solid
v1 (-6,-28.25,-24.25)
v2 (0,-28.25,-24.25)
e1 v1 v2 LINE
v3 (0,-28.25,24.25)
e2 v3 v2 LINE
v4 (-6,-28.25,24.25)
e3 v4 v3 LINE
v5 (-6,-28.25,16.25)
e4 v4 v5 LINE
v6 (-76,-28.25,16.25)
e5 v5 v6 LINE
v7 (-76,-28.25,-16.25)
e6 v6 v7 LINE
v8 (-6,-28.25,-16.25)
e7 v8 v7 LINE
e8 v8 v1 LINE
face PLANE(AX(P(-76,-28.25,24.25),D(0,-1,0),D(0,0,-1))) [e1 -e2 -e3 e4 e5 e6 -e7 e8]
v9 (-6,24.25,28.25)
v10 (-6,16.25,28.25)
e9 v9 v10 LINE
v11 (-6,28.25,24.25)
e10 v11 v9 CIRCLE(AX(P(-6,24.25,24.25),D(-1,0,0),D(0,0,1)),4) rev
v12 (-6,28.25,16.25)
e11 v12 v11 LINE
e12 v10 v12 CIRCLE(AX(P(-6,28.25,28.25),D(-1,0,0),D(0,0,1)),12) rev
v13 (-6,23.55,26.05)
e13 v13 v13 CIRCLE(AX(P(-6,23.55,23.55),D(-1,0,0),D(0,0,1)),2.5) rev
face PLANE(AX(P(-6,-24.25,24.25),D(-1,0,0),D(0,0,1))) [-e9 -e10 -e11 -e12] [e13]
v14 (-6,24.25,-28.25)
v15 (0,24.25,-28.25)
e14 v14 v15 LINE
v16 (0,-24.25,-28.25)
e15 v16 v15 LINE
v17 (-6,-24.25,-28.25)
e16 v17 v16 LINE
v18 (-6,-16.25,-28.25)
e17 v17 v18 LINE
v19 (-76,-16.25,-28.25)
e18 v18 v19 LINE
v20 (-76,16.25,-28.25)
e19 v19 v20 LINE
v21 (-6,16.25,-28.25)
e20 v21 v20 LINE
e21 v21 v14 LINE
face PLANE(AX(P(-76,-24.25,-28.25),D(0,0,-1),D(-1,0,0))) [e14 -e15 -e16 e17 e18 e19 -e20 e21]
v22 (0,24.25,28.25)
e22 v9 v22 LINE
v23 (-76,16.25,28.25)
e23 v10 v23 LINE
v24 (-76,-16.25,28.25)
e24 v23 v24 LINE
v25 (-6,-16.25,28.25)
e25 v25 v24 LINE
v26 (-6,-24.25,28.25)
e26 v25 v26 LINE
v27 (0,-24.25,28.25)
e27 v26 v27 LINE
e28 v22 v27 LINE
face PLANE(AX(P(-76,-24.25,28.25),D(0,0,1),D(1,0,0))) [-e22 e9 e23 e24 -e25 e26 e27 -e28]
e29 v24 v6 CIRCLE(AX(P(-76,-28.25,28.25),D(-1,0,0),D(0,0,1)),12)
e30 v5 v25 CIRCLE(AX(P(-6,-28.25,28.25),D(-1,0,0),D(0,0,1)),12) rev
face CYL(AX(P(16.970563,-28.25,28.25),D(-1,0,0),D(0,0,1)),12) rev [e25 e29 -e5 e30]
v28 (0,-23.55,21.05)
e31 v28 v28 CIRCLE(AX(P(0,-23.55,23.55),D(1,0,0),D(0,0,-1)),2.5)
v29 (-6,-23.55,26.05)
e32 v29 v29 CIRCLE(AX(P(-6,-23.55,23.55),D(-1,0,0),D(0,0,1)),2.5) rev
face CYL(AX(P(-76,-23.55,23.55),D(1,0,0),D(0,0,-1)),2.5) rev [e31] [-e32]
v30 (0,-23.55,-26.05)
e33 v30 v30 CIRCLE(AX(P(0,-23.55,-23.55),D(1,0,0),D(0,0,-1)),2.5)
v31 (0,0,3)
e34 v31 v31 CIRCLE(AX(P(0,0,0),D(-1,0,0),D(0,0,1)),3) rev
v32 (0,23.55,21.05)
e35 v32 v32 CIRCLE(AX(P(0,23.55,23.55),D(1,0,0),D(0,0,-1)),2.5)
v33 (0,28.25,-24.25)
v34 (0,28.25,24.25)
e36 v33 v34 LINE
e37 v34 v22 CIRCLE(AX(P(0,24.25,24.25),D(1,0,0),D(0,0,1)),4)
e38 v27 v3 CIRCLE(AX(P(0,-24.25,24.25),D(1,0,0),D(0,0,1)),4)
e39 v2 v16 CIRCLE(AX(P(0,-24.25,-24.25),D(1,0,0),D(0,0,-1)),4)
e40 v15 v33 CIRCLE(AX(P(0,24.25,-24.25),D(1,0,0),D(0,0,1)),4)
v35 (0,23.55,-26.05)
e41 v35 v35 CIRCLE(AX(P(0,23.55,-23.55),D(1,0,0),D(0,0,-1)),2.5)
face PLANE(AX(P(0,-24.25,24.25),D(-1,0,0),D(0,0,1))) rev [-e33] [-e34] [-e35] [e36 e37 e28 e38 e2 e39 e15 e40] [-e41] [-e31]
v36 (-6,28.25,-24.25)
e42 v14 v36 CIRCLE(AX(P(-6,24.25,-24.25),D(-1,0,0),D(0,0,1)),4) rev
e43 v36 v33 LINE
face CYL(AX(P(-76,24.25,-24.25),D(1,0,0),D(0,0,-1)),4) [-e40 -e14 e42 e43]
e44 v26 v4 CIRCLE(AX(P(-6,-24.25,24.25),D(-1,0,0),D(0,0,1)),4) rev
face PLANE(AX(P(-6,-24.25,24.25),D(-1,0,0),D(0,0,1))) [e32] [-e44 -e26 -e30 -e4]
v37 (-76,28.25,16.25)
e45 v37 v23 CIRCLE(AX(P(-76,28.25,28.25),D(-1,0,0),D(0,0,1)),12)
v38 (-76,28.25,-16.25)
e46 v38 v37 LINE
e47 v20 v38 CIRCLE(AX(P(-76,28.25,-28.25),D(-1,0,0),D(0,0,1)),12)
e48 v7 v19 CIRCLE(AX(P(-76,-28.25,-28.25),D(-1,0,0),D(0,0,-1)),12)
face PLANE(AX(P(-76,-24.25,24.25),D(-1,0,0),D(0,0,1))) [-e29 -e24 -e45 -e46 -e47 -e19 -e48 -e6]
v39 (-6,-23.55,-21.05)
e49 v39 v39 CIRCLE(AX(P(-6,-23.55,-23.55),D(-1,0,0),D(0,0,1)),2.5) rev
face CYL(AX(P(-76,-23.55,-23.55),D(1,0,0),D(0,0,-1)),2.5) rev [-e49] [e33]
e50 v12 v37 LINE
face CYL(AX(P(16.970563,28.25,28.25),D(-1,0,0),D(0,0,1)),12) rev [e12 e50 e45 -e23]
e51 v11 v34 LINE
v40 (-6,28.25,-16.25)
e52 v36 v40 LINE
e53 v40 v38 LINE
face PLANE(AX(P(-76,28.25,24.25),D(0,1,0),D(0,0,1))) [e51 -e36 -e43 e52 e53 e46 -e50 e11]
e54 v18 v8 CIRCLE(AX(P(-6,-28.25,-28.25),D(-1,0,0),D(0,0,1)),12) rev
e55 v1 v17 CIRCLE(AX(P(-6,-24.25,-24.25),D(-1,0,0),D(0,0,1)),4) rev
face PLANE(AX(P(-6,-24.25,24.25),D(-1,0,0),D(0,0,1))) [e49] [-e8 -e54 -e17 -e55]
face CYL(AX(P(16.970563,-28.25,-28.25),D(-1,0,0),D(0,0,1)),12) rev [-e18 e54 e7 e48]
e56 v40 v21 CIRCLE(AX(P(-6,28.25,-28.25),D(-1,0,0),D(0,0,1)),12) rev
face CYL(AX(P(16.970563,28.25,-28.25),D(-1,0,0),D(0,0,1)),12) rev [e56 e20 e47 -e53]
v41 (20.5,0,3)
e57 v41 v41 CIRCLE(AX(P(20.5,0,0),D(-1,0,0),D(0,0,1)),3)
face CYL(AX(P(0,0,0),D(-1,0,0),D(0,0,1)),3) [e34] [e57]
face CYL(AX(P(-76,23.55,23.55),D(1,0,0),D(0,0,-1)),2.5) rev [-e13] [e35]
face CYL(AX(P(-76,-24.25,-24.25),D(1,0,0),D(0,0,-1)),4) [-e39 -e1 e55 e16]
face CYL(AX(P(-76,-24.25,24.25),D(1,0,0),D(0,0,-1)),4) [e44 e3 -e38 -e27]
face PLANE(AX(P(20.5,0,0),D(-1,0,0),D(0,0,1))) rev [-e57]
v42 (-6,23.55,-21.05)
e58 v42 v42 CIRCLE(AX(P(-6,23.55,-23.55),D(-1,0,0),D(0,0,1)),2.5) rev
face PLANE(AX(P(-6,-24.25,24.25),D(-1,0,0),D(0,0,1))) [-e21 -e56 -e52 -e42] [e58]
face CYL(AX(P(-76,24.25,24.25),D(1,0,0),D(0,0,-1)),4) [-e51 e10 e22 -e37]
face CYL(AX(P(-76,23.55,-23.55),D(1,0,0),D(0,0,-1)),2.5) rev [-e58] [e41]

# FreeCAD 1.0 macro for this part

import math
import FreeCAD as App
import Part
import Sketcher
from FreeCAD import Vector
Q = App.Units.Quantity

doc = App.newDocument("Part")
params = doc.addObject("Spreadsheet::Sheet", "Params")
for row, (alias, value) in enumerate([
    ("sketch1_diameter", "5 mm"),
    ("sketch1_radius", "4 mm"),
    ("sketch1_width", "48.5 mm"),
    ("pad1_length", "76 mm"),
    ("sketch2_height", "3 mm"),
    ("sketch2_width", "20.5 mm"),
    ("revolution_angle", "360 deg"),
    ("sketch3_radius", "4 mm"),
    ("sketch3_radius2", "12 mm"),
    ("pocket1_length", "70 mm"),
], start=1):
    params.set(f"A{row}", alias)
    params.set(f"B{row}", "=" + value)
    params.setAlias(f"B{row}", alias)

body = doc.addObject("PartDesign::Body", "Body")

sketch1 = doc.addObject("Sketcher::SketchObject", "Sketch")
body.addObject(sketch1)
sketch1.AttachmentSupport = (doc.YZ_Plane, [""])
sketch1.MapMode = "FlatFace"
sketch1.addGeometry([
    Part.LineSegment(Vector(-28.2, 24.2, 0), Vector(-28.2, -24.2, 0)),
    Part.ArcOfCircle(Part.Circle(Vector(-24.3, -24.3, 0), Vector(0, 0, 1), 4), math.radians(180), math.radians(270)),
    Part.LineSegment(Vector(-24.2, -28.2, 0), Vector(24.2, -28.2, 0)),
    Part.ArcOfCircle(Part.Circle(Vector(24.3, -24.3, 0), Vector(0, 0, 1), 4), math.radians(-90), math.radians(0)),
    Part.LineSegment(Vector(28.2, -24.2, 0), Vector(28.2, 24.2, 0)),
    Part.ArcOfCircle(Part.Circle(Vector(24.3, 24.3, 0), Vector(0, 0, 1), 4), math.radians(0), math.radians(90)),
    Part.LineSegment(Vector(24.2, 28.2, 0), Vector(-24.2, 28.2, 0)),
    Part.ArcOfCircle(Part.Circle(Vector(-24.3, 24.3, 0), Vector(0, 0, 1), 4), math.radians(90), math.radians(180)),
    Part.Circle(Vector(-23.6, 23.6, 0), Vector(0, 0, 1), 2.5),
    Part.Circle(Vector(-23.6, -23.6, 0), Vector(0, 0, 1), 2.5),
    Part.Circle(Vector(23.6, 23.6, 0), Vector(0, 0, 1), 2.5),
    Part.Circle(Vector(23.6, -23.6, 0), Vector(0, 0, 1), 2.5),
], False)
sketch1.addConstraint([
    Sketcher.Constraint("Tangent", 0, 2, 1, 1),
    Sketcher.Constraint("Tangent", 1, 2, 2, 1),
    Sketcher.Constraint("Tangent", 2, 2, 3, 1),
    Sketcher.Constraint("Tangent", 3, 2, 4, 1),
    Sketcher.Constraint("Tangent", 4, 2, 5, 1),
    Sketcher.Constraint("Tangent", 5, 2, 6, 1),
    Sketcher.Constraint("Tangent", 6, 2, 7, 1),
    Sketcher.Constraint("Tangent", 7, 2, 0, 1),
    Sketcher.Constraint("Vertical", 0),
    Sketcher.Constraint("Horizontal", 2),
    Sketcher.Constraint("Vertical", 4),
    Sketcher.Constraint("Horizontal", 6),
    Sketcher.Constraint("Equal", 1, 3),
    Sketcher.Constraint("Equal", 3, 5),
    Sketcher.Constraint("Equal", 5, 7),
    Sketcher.Constraint("Equal", 8, 9),
    Sketcher.Constraint("Equal", 9, 10),
    Sketcher.Constraint("Equal", 10, 11),
    Sketcher.Constraint("Symmetric", 1, 3, 5, 3, -1, 1),
    Sketcher.Constraint("Symmetric", 9, 3, 10, 3, -1, 1),
    Sketcher.Constraint("Symmetric", 8, 3, 11, 3, -1, 1),
    Sketcher.Constraint("Symmetric", 8, 3, 10, 3, -2),
    Sketcher.Constraint("Equal", 6, 0),
    Sketcher.Constraint("Diameter", 8, Q("5 mm")),
    Sketcher.Constraint("Radius", 1, Q("4 mm")),
    Sketcher.Constraint("DistanceX", 2, 1, 2, 2, Q("48.5 mm")),
    Sketcher.Constraint("DistanceX", 7, 3, 8, 3, Q("0.7 mm")),
    Sketcher.Constraint("DistanceY", 8, 3, 7, 3, Q("0.7 mm")),
])
sketch1.setExpression("Constraints[23]", "Params.sketch1_diameter")
sketch1.setExpression("Constraints[24]", "Params.sketch1_radius")
sketch1.setExpression("Constraints[25]", "Params.sketch1_width")
pad1 = doc.addObject("PartDesign::Pad", "Pad")
body.addObject(pad1)
pad1.Profile = sketch1
pad1.setExpression("Length", "Params.pad1_length")
pad1.Reversed = True

sketch2 = doc.addObject("Sketcher::SketchObject", "Sketch001")
body.addObject(sketch2)
sketch2.AttachmentSupport = (doc.XZ_Plane, [""])
sketch2.MapMode = "FlatFace"
sketch2.addGeometry([
    Part.LineSegment(Vector(0, -3, 0), Vector(0, 0, 0)),
    Part.LineSegment(Vector(0, 0, 0), Vector(20.5, 0, 0)),
    Part.LineSegment(Vector(20.5, 0, 0), Vector(20.5, -3, 0)),
    Part.LineSegment(Vector(20.5, -3, 0), Vector(0, -3, 0)),
], False)
sketch2.addConstraint([
    Sketcher.Constraint("Coincident", 0, 2, 1, 1),
    Sketcher.Constraint("Coincident", 1, 2, 2, 1),
    Sketcher.Constraint("Coincident", 2, 2, 3, 1),
    Sketcher.Constraint("Coincident", 3, 2, 0, 1),
    Sketcher.Constraint("Vertical", 0),
    Sketcher.Constraint("Horizontal", 1),
    Sketcher.Constraint("Vertical", 2),
    Sketcher.Constraint("Horizontal", 3),
    Sketcher.Constraint("Coincident", 0, 2, -1, 1),
    Sketcher.Constraint("DistanceY", 0, 1, 0, 2, Q("3 mm")),
    Sketcher.Constraint("DistanceX", 1, 1, 1, 2, Q("20.5 mm")),
])
sketch2.setExpression("Constraints[9]", "Params.sketch2_height")
sketch2.setExpression("Constraints[10]", "Params.sketch2_width")
revolution = doc.addObject("PartDesign::Revolution", "Revolution")
body.addObject(revolution)
revolution.Profile = sketch2
revolution.ReferenceAxis = (sketch2, ["H_Axis"])
revolution.setExpression("Angle", "Params.revolution_angle")

sketch3 = doc.addObject("Sketcher::SketchObject", "Sketch002")
body.addObject(sketch3)
sketch3.AttachmentSupport = (doc.YZ_Plane, [""])
sketch3.MapMode = "FlatFace"
sketch3.AttachmentOffset = App.Placement(Vector(0, 0, -76), App.Rotation())
sketch3.addGeometry([
    Part.LineSegment(Vector(-16.2, -28.2, 0), Vector(-24.2, -28.2, 0)),
    Part.ArcOfCircle(Part.Circle(Vector(-24.3, -24.3, 0), Vector(0, 0, 1), 4), math.radians(180), math.radians(270)),
    Part.LineSegment(Vector(-28.2, -24.2, 0), Vector(-28.2, -16.2, 0)),
    Part.ArcOfCircle(Part.Circle(Vector(-28.3, -28.3, 0), Vector(0, 0, 1), 12), math.radians(0), math.radians(90)),
    Part.LineSegment(Vector(28.2, -16.2, 0), Vector(28.2, -24.2, 0)),
    Part.ArcOfCircle(Part.Circle(Vector(24.3, -24.3, 0), Vector(0, 0, 1), 4), math.radians(-90), math.radians(0)),
    Part.LineSegment(Vector(24.2, -28.2, 0), Vector(16.2, -28.2, 0)),
    Part.ArcOfCircle(Part.Circle(Vector(28.3, -28.3, 0), Vector(0, 0, 1), 12), math.radians(90), math.radians(180)),
    Part.LineSegment(Vector(16.2, 28.2, 0), Vector(24.2, 28.2, 0)),
    Part.ArcOfCircle(Part.Circle(Vector(24.3, 24.3, 0), Vector(0, 0, 1), 4), math.radians(0), math.radians(90)),
    Part.LineSegment(Vector(28.2, 24.2, 0), Vector(28.2, 16.2, 0)),
    Part.ArcOfCircle(Part.Circle(Vector(28.3, 28.3, 0), Vector(0, 0, 1), 12), math.radians(-180), math.radians(-90)),
    Part.LineSegment(Vector(-28.2, 16.2, 0), Vector(-28.2, 24.2, 0)),
    Part.ArcOfCircle(Part.Circle(Vector(-24.3, 24.3, 0), Vector(0, 0, 1), 4), math.radians(90), math.radians(180)),
    Part.LineSegment(Vector(-24.2, 28.2, 0), Vector(-16.2, 28.2, 0)),
    Part.ArcOfCircle(Part.Circle(Vector(-28.3, 28.3, 0), Vector(0, 0, 1), 12), math.radians(-90), math.radians(0)),
], False)
sketch3.addConstraint([
    Sketcher.Constraint("Tangent", 0, 2, 1, 2),
    Sketcher.Constraint("Tangent", 1, 1, 2, 1),
    Sketcher.Constraint("Coincident", 2, 2, 3, 2),
    Sketcher.Constraint("Coincident", 3, 1, 0, 1),
    Sketcher.Constraint("Tangent", 4, 2, 5, 2),
    Sketcher.Constraint("Tangent", 5, 1, 6, 1),
    Sketcher.Constraint("Coincident", 6, 2, 7, 2),
    Sketcher.Constraint("Coincident", 7, 1, 4, 1),
    Sketcher.Constraint("Tangent", 8, 2, 9, 2),
    Sketcher.Constraint("Tangent", 9, 1, 10, 1),
    Sketcher.Constraint("Coincident", 10, 2, 11, 2),
    Sketcher.Constraint("Coincident", 11, 1, 8, 1),
    Sketcher.Constraint("Tangent", 12, 2, 13, 2),
    Sketcher.Constraint("Tangent", 13, 1, 14, 1),
    Sketcher.Constraint("Coincident", 14, 2, 15, 2),
    Sketcher.Constraint("Coincident", 15, 1, 12, 1),
    Sketcher.Constraint("Horizontal", 0),
    Sketcher.Constraint("Vertical", 2),
    Sketcher.Constraint("Vertical", 4),
    Sketcher.Constraint("Horizontal", 6),
    Sketcher.Constraint("Horizontal", 8),
    Sketcher.Constraint("Vertical", 10),
    Sketcher.Constraint("Vertical", 12),
    Sketcher.Constraint("Horizontal", 14),
    Sketcher.Constraint("Equal", 1, 5),
    Sketcher.Constraint("Equal", 3, 7),
    Sketcher.Constraint("Equal", 5, 9),
    Sketcher.Constraint("Equal", 7, 11),
    Sketcher.Constraint("Equal", 9, 13),
    Sketcher.Constraint("Equal", 11, 15),
    Sketcher.Constraint("Symmetric", 1, 3, 9, 3, -1, 1),
    Sketcher.Constraint("Symmetric", 3, 3, 11, 3, -1, 1),
    Sketcher.Constraint("Symmetric", 5, 3, 13, 3, -1, 1),
    Sketcher.Constraint("Symmetric", 7, 3, 15, 3, -1, 1),
    Sketcher.Constraint("Symmetric", 1, 3, 5, 3, -2),
    Sketcher.Constraint("Symmetric", 3, 3, 7, 3, -2),
    Sketcher.Constraint("Horizontal", 7, 3, 0, 2),
    Sketcher.Constraint("Vertical", 15, 3, 1, 1),
    Sketcher.Constraint("Radius", 1, Q("4 mm")),
    Sketcher.Constraint("Radius", 3, Q("12 mm")),
    Sketcher.Constraint("DistanceX", 1, 3, 5, 3, Q("48.5 mm")),
    Sketcher.Constraint("DistanceY", 5, 3, 9, 3, Q("48.5 mm")),
])
sketch3.setExpression("Constraints[38]", "Params.sketch3_radius")
sketch3.setExpression("Constraints[39]", "Params.sketch3_radius2")
pocket1 = doc.addObject("PartDesign::Pocket", "Pocket")
body.addObject(pocket1)
pocket1.Profile = sketch3
pocket1.setExpression("Length", "Params.pocket1_length")
pocket1.Reversed = True

doc.recompute()
